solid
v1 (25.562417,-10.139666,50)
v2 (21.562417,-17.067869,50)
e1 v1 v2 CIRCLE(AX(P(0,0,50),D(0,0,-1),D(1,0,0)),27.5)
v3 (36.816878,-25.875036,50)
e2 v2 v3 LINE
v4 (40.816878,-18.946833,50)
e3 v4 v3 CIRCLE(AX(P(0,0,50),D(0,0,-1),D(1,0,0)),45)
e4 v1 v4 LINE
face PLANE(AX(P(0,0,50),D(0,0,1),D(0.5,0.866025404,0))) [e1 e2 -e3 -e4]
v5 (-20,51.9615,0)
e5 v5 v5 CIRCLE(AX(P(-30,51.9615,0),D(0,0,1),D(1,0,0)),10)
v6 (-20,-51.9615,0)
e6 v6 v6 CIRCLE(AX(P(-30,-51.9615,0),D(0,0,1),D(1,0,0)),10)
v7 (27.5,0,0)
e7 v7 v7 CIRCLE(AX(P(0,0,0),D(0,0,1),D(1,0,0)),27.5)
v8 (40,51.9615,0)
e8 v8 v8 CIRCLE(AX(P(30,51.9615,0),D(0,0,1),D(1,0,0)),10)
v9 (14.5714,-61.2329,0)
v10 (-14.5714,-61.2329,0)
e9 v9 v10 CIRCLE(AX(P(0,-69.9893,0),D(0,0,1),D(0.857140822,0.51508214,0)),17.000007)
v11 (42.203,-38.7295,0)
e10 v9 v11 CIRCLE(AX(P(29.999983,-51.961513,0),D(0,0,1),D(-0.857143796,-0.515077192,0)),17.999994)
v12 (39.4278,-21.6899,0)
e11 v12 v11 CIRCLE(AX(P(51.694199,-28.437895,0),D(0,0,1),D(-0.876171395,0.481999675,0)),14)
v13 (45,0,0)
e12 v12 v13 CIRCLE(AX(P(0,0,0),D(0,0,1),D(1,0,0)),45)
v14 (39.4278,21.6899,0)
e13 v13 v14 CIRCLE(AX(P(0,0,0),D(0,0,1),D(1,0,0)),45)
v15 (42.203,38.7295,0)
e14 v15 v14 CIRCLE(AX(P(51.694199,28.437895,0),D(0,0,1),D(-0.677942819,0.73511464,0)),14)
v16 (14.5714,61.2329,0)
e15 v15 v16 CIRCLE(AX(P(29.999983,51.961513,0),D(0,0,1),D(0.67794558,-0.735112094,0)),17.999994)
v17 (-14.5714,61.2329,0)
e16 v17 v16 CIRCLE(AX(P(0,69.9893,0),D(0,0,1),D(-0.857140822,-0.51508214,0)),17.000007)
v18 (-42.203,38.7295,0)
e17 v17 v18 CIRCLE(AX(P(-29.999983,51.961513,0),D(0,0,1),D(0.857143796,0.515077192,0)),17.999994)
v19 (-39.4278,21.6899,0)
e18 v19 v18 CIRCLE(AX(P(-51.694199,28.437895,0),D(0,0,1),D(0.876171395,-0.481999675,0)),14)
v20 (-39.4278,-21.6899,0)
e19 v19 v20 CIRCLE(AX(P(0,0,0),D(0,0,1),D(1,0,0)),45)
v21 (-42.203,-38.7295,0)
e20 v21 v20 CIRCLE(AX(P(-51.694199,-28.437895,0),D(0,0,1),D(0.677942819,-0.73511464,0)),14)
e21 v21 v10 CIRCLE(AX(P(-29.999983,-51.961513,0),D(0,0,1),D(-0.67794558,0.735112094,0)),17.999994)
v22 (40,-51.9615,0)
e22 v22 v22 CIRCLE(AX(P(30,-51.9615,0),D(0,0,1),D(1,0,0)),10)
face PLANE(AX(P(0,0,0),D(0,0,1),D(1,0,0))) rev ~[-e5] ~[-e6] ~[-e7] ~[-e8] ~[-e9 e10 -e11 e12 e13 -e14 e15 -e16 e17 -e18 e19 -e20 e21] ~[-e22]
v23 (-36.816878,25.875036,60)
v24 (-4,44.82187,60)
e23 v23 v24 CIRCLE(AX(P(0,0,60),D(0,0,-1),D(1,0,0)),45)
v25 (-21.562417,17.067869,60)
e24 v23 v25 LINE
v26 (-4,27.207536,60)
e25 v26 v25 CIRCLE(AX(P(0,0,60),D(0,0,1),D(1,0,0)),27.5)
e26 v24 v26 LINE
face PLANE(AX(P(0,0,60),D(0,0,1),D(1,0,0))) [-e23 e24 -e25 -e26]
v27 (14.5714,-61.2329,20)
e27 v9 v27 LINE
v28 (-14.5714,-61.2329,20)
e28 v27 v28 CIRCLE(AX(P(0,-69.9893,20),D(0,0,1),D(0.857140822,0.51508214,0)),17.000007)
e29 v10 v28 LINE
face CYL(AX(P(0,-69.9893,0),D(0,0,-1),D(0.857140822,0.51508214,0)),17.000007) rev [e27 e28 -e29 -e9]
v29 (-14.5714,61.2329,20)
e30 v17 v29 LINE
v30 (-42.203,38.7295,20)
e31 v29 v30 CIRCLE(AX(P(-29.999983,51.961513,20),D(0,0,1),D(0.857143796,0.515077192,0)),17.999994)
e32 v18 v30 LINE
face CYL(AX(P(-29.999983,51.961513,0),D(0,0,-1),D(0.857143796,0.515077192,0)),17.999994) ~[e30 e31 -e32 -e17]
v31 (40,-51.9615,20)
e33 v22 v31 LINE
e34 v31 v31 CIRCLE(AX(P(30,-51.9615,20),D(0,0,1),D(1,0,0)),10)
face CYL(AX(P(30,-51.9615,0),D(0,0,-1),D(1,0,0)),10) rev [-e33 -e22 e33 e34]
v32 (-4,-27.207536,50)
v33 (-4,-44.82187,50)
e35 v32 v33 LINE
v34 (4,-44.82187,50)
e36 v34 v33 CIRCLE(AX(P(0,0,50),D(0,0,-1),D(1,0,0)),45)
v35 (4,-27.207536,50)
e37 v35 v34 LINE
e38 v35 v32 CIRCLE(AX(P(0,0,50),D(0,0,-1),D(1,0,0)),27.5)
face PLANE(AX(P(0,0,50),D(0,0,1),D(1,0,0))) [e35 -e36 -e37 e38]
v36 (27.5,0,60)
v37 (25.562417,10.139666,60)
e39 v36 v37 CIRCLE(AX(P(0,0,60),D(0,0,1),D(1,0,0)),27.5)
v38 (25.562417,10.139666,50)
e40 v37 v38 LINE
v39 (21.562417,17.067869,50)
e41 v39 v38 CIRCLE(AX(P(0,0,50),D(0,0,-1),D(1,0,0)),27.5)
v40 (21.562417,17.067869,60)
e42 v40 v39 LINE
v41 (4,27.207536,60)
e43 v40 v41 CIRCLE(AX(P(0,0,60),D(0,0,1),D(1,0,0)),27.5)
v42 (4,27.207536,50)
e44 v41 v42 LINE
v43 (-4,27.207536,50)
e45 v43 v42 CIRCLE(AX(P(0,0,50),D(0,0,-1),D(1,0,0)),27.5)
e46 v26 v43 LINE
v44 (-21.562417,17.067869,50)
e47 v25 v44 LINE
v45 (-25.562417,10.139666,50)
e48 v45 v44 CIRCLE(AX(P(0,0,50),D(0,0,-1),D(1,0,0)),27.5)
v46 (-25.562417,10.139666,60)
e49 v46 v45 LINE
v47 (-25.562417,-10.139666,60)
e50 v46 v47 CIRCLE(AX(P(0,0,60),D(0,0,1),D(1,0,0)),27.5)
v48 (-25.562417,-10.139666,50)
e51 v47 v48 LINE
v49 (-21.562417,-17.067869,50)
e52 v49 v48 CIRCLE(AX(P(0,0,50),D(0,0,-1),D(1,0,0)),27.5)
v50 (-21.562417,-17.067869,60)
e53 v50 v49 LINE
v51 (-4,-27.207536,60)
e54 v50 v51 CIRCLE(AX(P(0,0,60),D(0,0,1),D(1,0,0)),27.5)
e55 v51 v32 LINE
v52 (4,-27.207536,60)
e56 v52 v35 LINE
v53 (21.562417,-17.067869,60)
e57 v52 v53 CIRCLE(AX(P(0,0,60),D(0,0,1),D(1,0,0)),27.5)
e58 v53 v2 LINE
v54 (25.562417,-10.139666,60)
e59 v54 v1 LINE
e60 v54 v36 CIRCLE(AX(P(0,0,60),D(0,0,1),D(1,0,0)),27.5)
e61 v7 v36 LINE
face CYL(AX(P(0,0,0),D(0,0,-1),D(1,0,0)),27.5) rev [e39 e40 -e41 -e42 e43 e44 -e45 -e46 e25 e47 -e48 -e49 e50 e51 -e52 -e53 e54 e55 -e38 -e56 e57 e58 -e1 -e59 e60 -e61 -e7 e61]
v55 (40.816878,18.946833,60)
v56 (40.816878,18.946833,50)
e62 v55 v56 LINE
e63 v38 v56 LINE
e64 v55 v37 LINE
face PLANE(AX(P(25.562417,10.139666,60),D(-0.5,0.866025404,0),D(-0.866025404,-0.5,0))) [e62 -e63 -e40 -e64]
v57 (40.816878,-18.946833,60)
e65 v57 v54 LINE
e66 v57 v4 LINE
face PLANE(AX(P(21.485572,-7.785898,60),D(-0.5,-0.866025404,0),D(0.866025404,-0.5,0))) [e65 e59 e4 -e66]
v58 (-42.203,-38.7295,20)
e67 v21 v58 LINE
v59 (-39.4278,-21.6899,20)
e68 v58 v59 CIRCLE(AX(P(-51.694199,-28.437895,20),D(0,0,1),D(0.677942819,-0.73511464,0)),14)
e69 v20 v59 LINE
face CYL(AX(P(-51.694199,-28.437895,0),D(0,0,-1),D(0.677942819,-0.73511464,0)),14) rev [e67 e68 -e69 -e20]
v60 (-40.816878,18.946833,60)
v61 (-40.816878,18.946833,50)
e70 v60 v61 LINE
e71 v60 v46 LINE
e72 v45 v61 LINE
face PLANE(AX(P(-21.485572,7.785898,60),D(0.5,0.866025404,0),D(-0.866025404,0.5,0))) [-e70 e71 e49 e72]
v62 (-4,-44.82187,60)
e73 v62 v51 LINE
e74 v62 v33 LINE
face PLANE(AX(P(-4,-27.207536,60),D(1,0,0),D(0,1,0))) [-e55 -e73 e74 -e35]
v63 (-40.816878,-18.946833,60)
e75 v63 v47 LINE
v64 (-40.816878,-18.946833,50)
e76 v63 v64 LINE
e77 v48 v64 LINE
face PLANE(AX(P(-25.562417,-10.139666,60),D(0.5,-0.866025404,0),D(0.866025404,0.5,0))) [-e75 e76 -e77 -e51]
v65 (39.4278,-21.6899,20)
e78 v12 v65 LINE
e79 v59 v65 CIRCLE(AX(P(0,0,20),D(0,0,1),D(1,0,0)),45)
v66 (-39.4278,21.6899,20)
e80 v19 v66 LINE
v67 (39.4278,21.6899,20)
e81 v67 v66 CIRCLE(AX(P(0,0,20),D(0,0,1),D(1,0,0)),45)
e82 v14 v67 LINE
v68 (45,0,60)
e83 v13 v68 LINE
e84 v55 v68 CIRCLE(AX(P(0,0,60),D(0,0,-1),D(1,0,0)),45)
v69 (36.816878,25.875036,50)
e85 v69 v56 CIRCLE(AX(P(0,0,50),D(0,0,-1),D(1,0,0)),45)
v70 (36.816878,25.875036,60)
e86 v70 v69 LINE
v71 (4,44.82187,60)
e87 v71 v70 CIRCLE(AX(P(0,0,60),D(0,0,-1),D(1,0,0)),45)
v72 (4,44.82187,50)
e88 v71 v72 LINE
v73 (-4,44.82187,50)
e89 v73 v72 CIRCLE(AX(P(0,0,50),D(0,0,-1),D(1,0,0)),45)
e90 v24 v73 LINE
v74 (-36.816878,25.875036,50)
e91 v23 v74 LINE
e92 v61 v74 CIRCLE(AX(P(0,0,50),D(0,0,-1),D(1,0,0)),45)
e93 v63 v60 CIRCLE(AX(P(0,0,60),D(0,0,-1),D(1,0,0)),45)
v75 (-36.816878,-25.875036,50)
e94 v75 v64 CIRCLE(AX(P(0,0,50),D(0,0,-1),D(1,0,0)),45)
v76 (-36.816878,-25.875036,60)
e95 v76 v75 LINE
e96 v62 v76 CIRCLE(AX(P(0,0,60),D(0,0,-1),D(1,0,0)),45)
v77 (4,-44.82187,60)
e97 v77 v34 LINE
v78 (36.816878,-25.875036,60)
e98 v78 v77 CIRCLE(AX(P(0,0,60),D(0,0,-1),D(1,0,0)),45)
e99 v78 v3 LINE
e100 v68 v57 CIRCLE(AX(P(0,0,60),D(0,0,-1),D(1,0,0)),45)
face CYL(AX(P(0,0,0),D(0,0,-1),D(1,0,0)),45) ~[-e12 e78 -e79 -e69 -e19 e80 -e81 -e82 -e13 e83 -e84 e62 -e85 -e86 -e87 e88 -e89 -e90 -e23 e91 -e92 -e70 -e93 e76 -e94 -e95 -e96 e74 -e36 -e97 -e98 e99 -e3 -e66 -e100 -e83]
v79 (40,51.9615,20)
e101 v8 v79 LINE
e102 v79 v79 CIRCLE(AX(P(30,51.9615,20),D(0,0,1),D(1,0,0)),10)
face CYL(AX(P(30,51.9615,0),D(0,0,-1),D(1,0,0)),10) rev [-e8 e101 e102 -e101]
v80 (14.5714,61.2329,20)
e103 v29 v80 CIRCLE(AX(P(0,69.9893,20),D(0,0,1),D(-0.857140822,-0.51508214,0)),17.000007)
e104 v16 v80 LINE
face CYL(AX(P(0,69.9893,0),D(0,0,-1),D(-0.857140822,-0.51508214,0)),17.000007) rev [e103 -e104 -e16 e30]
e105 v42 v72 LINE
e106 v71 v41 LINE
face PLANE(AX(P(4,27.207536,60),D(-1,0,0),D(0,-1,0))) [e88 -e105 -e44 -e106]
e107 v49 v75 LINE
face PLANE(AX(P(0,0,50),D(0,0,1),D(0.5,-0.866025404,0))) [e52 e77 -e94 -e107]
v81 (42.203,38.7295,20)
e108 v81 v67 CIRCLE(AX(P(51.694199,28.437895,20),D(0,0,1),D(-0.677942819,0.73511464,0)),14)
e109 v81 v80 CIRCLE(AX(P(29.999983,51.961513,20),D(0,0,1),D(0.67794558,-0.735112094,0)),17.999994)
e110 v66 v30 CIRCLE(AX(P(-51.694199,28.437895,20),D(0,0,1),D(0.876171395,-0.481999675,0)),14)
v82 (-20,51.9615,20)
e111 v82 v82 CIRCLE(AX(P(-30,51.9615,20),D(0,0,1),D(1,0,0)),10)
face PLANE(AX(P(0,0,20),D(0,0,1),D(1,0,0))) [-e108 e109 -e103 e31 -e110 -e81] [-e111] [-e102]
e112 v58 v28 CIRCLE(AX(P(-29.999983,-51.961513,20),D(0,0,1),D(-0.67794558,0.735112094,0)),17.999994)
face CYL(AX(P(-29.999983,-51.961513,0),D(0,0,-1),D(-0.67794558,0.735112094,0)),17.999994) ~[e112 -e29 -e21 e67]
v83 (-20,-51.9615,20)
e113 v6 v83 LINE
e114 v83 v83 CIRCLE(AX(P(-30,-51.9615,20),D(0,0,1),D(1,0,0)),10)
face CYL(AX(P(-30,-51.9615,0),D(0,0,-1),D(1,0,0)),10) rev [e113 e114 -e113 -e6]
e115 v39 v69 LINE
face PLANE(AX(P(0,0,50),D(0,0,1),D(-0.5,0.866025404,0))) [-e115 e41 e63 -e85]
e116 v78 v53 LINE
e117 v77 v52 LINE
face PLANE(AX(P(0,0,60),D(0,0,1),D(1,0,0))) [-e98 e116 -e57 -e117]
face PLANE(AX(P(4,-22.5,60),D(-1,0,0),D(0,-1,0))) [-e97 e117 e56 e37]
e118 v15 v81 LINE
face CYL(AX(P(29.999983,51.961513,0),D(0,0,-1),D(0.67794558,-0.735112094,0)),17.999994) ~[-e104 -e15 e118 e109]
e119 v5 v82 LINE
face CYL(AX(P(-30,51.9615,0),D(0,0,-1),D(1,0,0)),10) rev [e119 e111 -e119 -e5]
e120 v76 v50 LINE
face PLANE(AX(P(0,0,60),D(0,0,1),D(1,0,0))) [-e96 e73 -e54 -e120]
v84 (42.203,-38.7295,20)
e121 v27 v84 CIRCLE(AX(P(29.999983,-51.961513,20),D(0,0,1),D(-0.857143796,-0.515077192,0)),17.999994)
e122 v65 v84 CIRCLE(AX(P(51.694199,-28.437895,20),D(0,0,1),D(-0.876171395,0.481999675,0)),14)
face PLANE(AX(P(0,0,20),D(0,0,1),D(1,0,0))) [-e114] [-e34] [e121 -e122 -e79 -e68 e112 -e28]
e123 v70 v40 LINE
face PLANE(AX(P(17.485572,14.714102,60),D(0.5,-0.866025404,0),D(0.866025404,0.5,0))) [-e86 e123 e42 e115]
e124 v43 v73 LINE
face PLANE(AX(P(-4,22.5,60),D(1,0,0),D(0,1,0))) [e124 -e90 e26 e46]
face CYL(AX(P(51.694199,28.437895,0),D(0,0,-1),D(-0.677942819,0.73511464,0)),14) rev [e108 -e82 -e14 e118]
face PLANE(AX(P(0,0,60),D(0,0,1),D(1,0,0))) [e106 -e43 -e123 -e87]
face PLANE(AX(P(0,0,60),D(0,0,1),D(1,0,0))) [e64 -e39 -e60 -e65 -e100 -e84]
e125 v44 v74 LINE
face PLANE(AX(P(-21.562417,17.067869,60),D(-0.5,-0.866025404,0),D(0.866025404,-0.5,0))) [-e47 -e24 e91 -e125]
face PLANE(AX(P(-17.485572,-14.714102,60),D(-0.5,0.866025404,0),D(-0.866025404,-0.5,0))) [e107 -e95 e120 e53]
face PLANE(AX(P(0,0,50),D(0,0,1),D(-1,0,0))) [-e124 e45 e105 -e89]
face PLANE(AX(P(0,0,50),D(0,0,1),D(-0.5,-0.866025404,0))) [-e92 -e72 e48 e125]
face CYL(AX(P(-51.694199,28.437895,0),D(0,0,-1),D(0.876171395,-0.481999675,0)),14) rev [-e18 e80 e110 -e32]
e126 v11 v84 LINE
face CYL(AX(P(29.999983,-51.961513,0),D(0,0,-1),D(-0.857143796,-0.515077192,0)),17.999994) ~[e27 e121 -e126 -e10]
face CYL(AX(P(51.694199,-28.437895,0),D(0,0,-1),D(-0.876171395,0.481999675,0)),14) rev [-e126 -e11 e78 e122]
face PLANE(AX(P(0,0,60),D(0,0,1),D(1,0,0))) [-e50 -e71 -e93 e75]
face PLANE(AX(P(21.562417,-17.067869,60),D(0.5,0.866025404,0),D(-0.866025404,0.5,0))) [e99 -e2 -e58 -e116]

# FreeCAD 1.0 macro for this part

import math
import FreeCAD as App
import Part
import Sketcher
Q = App.Units.Quantity


def add_polygon(sketch, points):
    """Adds a closed chain of lines whose ends are joined by coincident constraints."""
    first, n = sketch.GeometryCount, len(points)
    for a, b in zip(points, points[1:] + points[:1]):
        sketch.addGeometry(Part.LineSegment(App.Vector(*a, 0), App.Vector(*b, 0)), False)
    for i in range(n):
        sketch.addConstraint(Sketcher.Constraint("Coincident", first + i, 2, first + (i + 1) % n, 1))

doc = App.newDocument("Part")
body = doc.addObject("PartDesign::Body", "Body")
body.AllowCompound = True

# Sketch on XY plane
sketch1 = body.newObject("Sketcher::SketchObject", "Sketch")
sketch1.AttachmentSupport = (doc.getObject("XY_Plane"), [""])
sketch1.MapMode = "FlatFace"
sketch1.addGeometry([
    Part.ArcOfCircle(Part.Circle(App.Vector(0, 0, 0), App.Vector(0, 0, 1), 45), math.radians(29), math.radians(151)),  # 0
    Part.ArcOfCircle(Part.Circle(App.Vector(52, 28, 0), App.Vector(0, 0, 1), 14), math.radians(133), math.radians(209)),  # 1
    Part.ArcOfCircle(Part.Circle(App.Vector(30, 52, 0), App.Vector(0, 0, 1), 18), math.radians(-47), math.radians(149)),  # 2
    Part.ArcOfCircle(Part.Circle(App.Vector(0, 70, 0), App.Vector(0, 0, 1), 17), math.radians(-149), math.radians(-31)),  # 3
    Part.ArcOfCircle(Part.Circle(App.Vector(-30, 52, 0), App.Vector(0, 0, 1), 18), math.radians(31), math.radians(227)),  # 4
    Part.ArcOfCircle(Part.Circle(App.Vector(-52, 28, 0), App.Vector(0, 0, 1), 14), math.radians(-29), math.radians(47)),  # 5
    Part.Circle(App.Vector(-30, 52, 0), App.Vector(0, 0, 1), 10),  # 6
    Part.Circle(App.Vector(30, 52, 0), App.Vector(0, 0, 1), 10),  # 7
    Part.ArcOfCircle(Part.Circle(App.Vector(52, -28, 0), App.Vector(0, 0, 1), 14), math.radians(151), math.radians(227)),  # 8
    Part.ArcOfCircle(Part.Circle(App.Vector(0, 0, 0), App.Vector(0, 0, 1), 45), math.radians(-151), math.radians(-29)),  # 9
    Part.ArcOfCircle(Part.Circle(App.Vector(-52, -28, 0), App.Vector(0, 0, 1), 14), math.radians(-47), math.radians(29)),  # 10
    Part.ArcOfCircle(Part.Circle(App.Vector(-30, -52, 0), App.Vector(0, 0, 1), 18), math.radians(133), math.radians(329)),  # 11
    Part.ArcOfCircle(Part.Circle(App.Vector(0, -70, 0), App.Vector(0, 0, 1), 17), math.radians(31), math.radians(149)),  # 12
    Part.ArcOfCircle(Part.Circle(App.Vector(30, -52, 0), App.Vector(0, 0, 1), 18), math.radians(-149), math.radians(47)),  # 13
    Part.Circle(App.Vector(-30, -52, 0), App.Vector(0, 0, 1), 10),  # 14
    Part.Circle(App.Vector(30, -52, 0), App.Vector(0, 0, 1), 10),  # 15
], False)
sketch1.addConstraint([
    Sketcher.Constraint("Tangent", 0, 1, 1, 2),
    Sketcher.Constraint("Tangent", 1, 1, 2, 1),
    Sketcher.Constraint("Tangent", 2, 2, 3, 2),
    Sketcher.Constraint("Tangent", 3, 1, 4, 1),
    Sketcher.Constraint("Tangent", 4, 2, 5, 2),
    Sketcher.Constraint("Tangent", 5, 1, 0, 2),
    Sketcher.Constraint("Tangent", 8, 1, 9, 2),
    Sketcher.Constraint("Tangent", 9, 1, 10, 2),
    Sketcher.Constraint("Tangent", 10, 1, 11, 1),
    Sketcher.Constraint("Tangent", 11, 2, 12, 2),
    Sketcher.Constraint("Tangent", 12, 1, 13, 1),
    Sketcher.Constraint("Tangent", 13, 2, 8, 2),
    Sketcher.Constraint("Coincident", 0, 3, -1, 1),
    Sketcher.Constraint("Coincident", 9, 3, -1, 1),
    Sketcher.Constraint("Coincident", 6, 3, 4, 3),
    Sketcher.Constraint("Coincident", 7, 3, 2, 3),
    Sketcher.Constraint("Coincident", 14, 3, 11, 3),
    Sketcher.Constraint("Coincident", 15, 3, 13, 3),
    Sketcher.Constraint("Equal", 2, 4),
    Sketcher.Constraint("Equal", 1, 5),
    Sketcher.Constraint("Equal", 6, 7),
    Sketcher.Constraint("Equal", 5, 8),
    Sketcher.Constraint("Equal", 0, 9),
    Sketcher.Constraint("Equal", 8, 10),
    Sketcher.Constraint("Equal", 4, 11),
    Sketcher.Constraint("Equal", 3, 12),
    Sketcher.Constraint("Equal", 11, 13),
    Sketcher.Constraint("Equal", 7, 14),
    Sketcher.Constraint("Equal", 14, 15),
    Sketcher.Constraint("Symmetric", 2, 3, 11, 3, -1, 1),
    Sketcher.Constraint("Symmetric", 4, 3, 13, 3, -1, 1),
    Sketcher.Constraint("Symmetric", 2, 3, 4, 3, -2),
    Sketcher.Constraint("Diameter", 6, Q("20 mm")),
    Sketcher.Constraint("Radius", 0, Q("45 mm")),
    Sketcher.Constraint("Radius", 1, Q("14 mm")),
    Sketcher.Constraint("Radius", 2, Q("18 mm")),
    Sketcher.Constraint("Radius", 3, Q("17 mm")),
    Sketcher.Constraint("DistanceX", -1, 1, 2, 3, Q("30 mm")),
    Sketcher.Constraint("DistanceY", -1, 1, 0, 1, Q("21.69 mm")),
])
pad1 = body.newObject("PartDesign::Pad", "Pad")
pad1.Profile = sketch1
pad1.Length = 20

# Sketch on XY plane
sketch2 = body.newObject("Sketcher::SketchObject", "Sketch001")
sketch2.AttachmentSupport = (doc.getObject("XY_Plane"), [""])
sketch2.MapMode = "FlatFace"
sketch2.addGeometry([
    Part.Circle(App.Vector(0, 0, 0), App.Vector(0, 0, 1), 45),
    Part.Circle(App.Vector(0, 0, 0), App.Vector(0, 0, 1), 28),
], False)
sketch2.addConstraint([
    Sketcher.Constraint("Coincident", 0, 3, -1, 1),
    Sketcher.Constraint("Coincident", 1, 3, -1, 1),
    Sketcher.Constraint("Diameter", 0, Q("90 mm")),
    Sketcher.Constraint("Diameter", 1, Q("55 mm")),
])
pad2 = body.newObject("PartDesign::Pad", "Pad001")
pad2.Profile = sketch2
pad2.Length = 60

# Sketch on XY plane
sketch3 = body.newObject("Sketcher::SketchObject", "Sketch002")
sketch3.AttachmentSupport = (doc.getObject("XY_Plane"), [""])
sketch3.MapMode = "FlatFace"
sketch3.AttachmentOffset = App.Placement(App.Vector(0, 0, 60), App.Rotation())
add_polygon(sketch3, [(4, 22), (4, 48), (-4, 48), (-4, 22)])  # lines 0-3
sketch3.addConstraint([
    Sketcher.Constraint("Vertical", 0),
    Sketcher.Constraint("Horizontal", 1),
    Sketcher.Constraint("Vertical", 2),
    Sketcher.Constraint("Horizontal", 3),
    Sketcher.Constraint("DistanceX", 1, 2, 1, 1, Q("8 mm")),
    Sketcher.Constraint("DistanceY", 0, 1, 0, 2, Q("25 mm")),
    Sketcher.Constraint("DistanceX", -1, 1, 0, 2, Q("4 mm")),
    Sketcher.Constraint("DistanceY", -1, 1, 0, 2, Q("47.5 mm")),
])
pocket1 = body.newObject("PartDesign::Pocket", "Pocket")
pocket1.Profile = sketch3
pocket1.Length = 10
doc.recompute()

polarpattern = body.newObject("PartDesign::PolarPattern", "PolarPattern")
polarpattern.Originals = [pocket1]
polarpattern.Axis = (doc.getObject("Z_Axis"), [""])
polarpattern.Angle = 360
polarpattern.Occurrences = 6
body.Tip = polarpattern

doc.recompute()
